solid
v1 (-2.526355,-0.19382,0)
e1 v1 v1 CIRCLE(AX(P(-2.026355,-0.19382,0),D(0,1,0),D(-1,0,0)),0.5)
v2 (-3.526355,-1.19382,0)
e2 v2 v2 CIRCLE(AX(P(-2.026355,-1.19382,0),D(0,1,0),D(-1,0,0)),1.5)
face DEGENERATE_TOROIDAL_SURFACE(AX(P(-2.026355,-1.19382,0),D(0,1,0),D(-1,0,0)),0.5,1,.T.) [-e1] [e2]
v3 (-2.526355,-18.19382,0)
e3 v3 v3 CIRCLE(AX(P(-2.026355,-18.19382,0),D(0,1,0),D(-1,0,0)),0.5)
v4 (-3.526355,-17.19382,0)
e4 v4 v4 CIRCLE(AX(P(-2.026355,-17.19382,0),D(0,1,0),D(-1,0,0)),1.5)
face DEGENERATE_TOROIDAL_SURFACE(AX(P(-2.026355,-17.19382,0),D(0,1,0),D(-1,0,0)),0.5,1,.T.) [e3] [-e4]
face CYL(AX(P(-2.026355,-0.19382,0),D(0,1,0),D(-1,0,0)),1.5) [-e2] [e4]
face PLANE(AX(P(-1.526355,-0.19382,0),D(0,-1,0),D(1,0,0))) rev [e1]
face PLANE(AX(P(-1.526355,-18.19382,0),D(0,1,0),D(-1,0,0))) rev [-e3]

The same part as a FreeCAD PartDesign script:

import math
import FreeCAD as App
import Part
import Sketcher
from FreeCAD import Vector

doc = App.newDocument("Part")
body = doc.addObject("PartDesign::Body", "Body")

# Sketch on XY plane
sketch1 = body.newObject("Sketcher::SketchObject", "Sketch")
sketch1.AttachmentSupport = (doc.getObject("XY_Plane"), [""])
sketch1.MapMode = "FlatFace"
sketch1.addGeometry(Part.LineSegment(Vector(-2.03, -0.19, 0), Vector(-2.03, -18.19, 0)), False)
sketch1.addGeometry(Part.LineSegment(Vector(-2.03, -18.19, 0), Vector(-1.53, -18.19, 0)), False)
sketch1.addGeometry(Part.ArcOfCircle(Part.Circle(Vector(-1.53, -17.19, 0), Vector(0, 0, 1), 1), math.radians(-90), math.radians(0)), False)
sketch1.addGeometry(Part.LineSegment(Vector(-0.53, -17.19, 0), Vector(-0.53, -1.19, 0)), False)
sketch1.addGeometry(Part.ArcOfCircle(Part.Circle(Vector(-1.53, -1.19, 0), Vector(0, 0, 1), 1), math.radians(0), math.radians(90)), False)
sketch1.addGeometry(Part.LineSegment(Vector(-1.53, -0.19, 0), Vector(-2.03, -0.19, 0)), False)
sketch1.addGeometry(Part.LineSegment(Vector(-2.03, -0.19, 0), Vector(-2.03, -18.19, 0)), True)  # axis
sketch1.addConstraint(Sketcher.Constraint("Coincident", 0, 2, 1, 1))
sketch1.addConstraint(Sketcher.Constraint("Tangent", 1, 2, 2, 1))
sketch1.addConstraint(Sketcher.Constraint("Tangent", 2, 2, 3, 1))
sketch1.addConstraint(Sketcher.Constraint("Tangent", 3, 2, 4, 1))
sketch1.addConstraint(Sketcher.Constraint("Tangent", 4, 2, 5, 1))
sketch1.addConstraint(Sketcher.Constraint("Coincident", 5, 2, 0, 1))
sketch1.addConstraint(Sketcher.Constraint("Vertical", 0))
sketch1.addConstraint(Sketcher.Constraint("Horizontal", 1))
sketch1.addConstraint(Sketcher.Constraint("Vertical", 3))
sketch1.addConstraint(Sketcher.Constraint("Horizontal", 5))
sketch1.addConstraint(Sketcher.Constraint("Vertical", 6))
sketch1.addConstraint(Sketcher.Constraint("Coincident", 6, 1, 5, 2))
sketch1.addConstraint(Sketcher.Constraint("Equal", 2, 4))
sketch1.addConstraint(Sketcher.Constraint("Horizontal", 1, 2, 6, 2))
sketch1.addConstraint(Sketcher.Constraint("Radius", 2, 1.0))
sketch1.addConstraint(Sketcher.Constraint("DistanceY", 0, 2, 0, 1, 18.0))
sketch1.addConstraint(Sketcher.Constraint("DistanceX", 1, 1, 1, 2, 0.5))
sketch1.addConstraint(Sketcher.Constraint("DistanceY", 2, 3, -1, 1, 17.19382))
sketch1.addConstraint(Sketcher.Constraint("DistanceX", 2, 3, -1, 1, 1.526355))
revolution = body.newObject("PartDesign::Revolution", "Revolution")
revolution.Profile = sketch1
revolution.ReferenceAxis = (sketch1, ["Axis0"])
revolution.Angle = 360

doc.recompute()
